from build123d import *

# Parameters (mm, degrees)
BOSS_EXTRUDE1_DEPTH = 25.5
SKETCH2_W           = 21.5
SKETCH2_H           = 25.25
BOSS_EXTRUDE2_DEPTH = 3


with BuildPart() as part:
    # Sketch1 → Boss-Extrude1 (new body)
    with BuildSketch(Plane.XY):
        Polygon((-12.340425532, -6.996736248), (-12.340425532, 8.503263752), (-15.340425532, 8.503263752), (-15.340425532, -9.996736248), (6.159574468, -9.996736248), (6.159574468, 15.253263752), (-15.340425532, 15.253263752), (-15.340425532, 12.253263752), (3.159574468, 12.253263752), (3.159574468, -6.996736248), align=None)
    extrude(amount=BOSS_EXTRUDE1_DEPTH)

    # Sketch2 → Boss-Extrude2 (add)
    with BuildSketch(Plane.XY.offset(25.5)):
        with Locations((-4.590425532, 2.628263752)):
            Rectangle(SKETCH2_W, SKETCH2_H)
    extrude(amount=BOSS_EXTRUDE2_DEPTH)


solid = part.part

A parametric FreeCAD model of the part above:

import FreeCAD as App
import Part
import Sketcher

V = App.Vector

doc = App.newDocument("Part")
body = doc.addObject("PartDesign::Body", "Body")

# Sketch on XY plane
sketch1 = body.newObject("Sketcher::SketchObject", "Sketch")
sketch1.AttachmentSupport = (doc.getObject("XY_Plane"), [""])
sketch1.MapMode = "FlatFace"
sketch1.addGeometry(Part.LineSegment(V(-12.3, -7, 0), V(-12.3, 8.5, 0)), False)
sketch1.addGeometry(Part.LineSegment(V(-12.3, 8.5, 0), V(-15.3, 8.5, 0)), False)
sketch1.addGeometry(Part.LineSegment(V(-15.3, 8.5, 0), V(-15.3, -10, 0)), False)
sketch1.addGeometry(Part.LineSegment(V(-15.3, -10, 0), V(6.2, -10, 0)), False)
sketch1.addGeometry(Part.LineSegment(V(6.2, -10, 0), V(6.2, 15.3, 0)), False)
sketch1.addGeometry(Part.LineSegment(V(6.2, 15.3, 0), V(-15.3, 15.3, 0)), False)
sketch1.addGeometry(Part.LineSegment(V(-15.3, 15.3, 0), V(-15.3, 12.3, 0)), False)
sketch1.addGeometry(Part.LineSegment(V(-15.3, 12.3, 0), V(3.2, 12.3, 0)), False)
sketch1.addGeometry(Part.LineSegment(V(3.2, 12.3, 0), V(3.2, -7, 0)), False)
sketch1.addGeometry(Part.LineSegment(V(3.2, -7, 0), V(-12.3, -7, 0)), False)
sketch1.addConstraint(Sketcher.Constraint("Coincident", 0, 2, 1, 1))
sketch1.addConstraint(Sketcher.Constraint("Coincident", 1, 2, 2, 1))
sketch1.addConstraint(Sketcher.Constraint("Coincident", 2, 2, 3, 1))
sketch1.addConstraint(Sketcher.Constraint("Coincident", 3, 2, 4, 1))
sketch1.addConstraint(Sketcher.Constraint("Coincident", 4, 2, 5, 1))
sketch1.addConstraint(Sketcher.Constraint("Coincident", 5, 2, 6, 1))
sketch1.addConstraint(Sketcher.Constraint("Coincident", 6, 2, 7, 1))
sketch1.addConstraint(Sketcher.Constraint("Coincident", 7, 2, 8, 1))
sketch1.addConstraint(Sketcher.Constraint("Coincident", 8, 2, 9, 1))
sketch1.addConstraint(Sketcher.Constraint("Coincident", 9, 2, 0, 1))
sketch1.addConstraint(Sketcher.Constraint("Vertical", 0))
sketch1.addConstraint(Sketcher.Constraint("Horizontal", 1))
sketch1.addConstraint(Sketcher.Constraint("Vertical", 2))
sketch1.addConstraint(Sketcher.Constraint("Horizontal", 3))
sketch1.addConstraint(Sketcher.Constraint("Vertical", 4))
sketch1.addConstraint(Sketcher.Constraint("Horizontal", 5))
sketch1.addConstraint(Sketcher.Constraint("Vertical", 6))
sketch1.addConstraint(Sketcher.Constraint("Horizontal", 7))
sketch1.addConstraint(Sketcher.Constraint("Vertical", 8))
sketch1.addConstraint(Sketcher.Constraint("Horizontal", 9))
sketch1.addConstraint(Sketcher.Constraint("Vertical", 2, 2, 5, 2))
sketch1.addConstraint(Sketcher.Constraint("Equal", 9, 0))
sketch1.addConstraint(Sketcher.Constraint("Equal", 7, 2))
sketch1.addConstraint(Sketcher.Constraint("Equal", 1, 6))
sketch1.addConstraint(Sketcher.Constraint("DistanceX", 1, 2, 1, 1, 3.0))
sketch1.addConstraint(Sketcher.Constraint("DistanceX", 3, 1, 3, 2, 21.5))
sketch1.addConstraint(Sketcher.Constraint("DistanceX", 7, 1, 7, 2, 18.5))
sketch1.addConstraint(Sketcher.Constraint("DistanceY", 4, 1, 4, 2, 25.25))
sketch1.addConstraint(Sketcher.Constraint("DistanceX", 0, 2, -1, 1, 12.340426))
sketch1.addConstraint(Sketcher.Constraint("DistanceY", -1, 1, 0, 2, 8.503264))
pad1 = body.newObject("PartDesign::Pad", "Pad")
pad1.Profile = sketch1
pad1.Length = 25.5

# Sketch on XY plane
sketch2 = body.newObject("Sketcher::SketchObject", "Sketch001")
sketch2.AttachmentSupport = (doc.getObject("XY_Plane"), [""])
sketch2.MapMode = "FlatFace"
sketch2.AttachmentOffset = App.Placement(V(0, 0, 25.5), App.Rotation())
sketch2.addGeometry(Part.LineSegment(V(-15, 15, 0), V(-15, -10, 0)), False)
sketch2.addGeometry(Part.LineSegment(V(-15, -10, 0), V(6, -10, 0)), False)
sketch2.addGeometry(Part.LineSegment(V(6, -10, 0), V(6, 15, 0)), False)
sketch2.addGeometry(Part.LineSegment(V(6, 15, 0), V(-15, 15, 0)), False)
sketch2.addConstraint(Sketcher.Constraint("Coincident", 0, 2, 1, 1))
sketch2.addConstraint(Sketcher.Constraint("Coincident", 1, 2, 2, 1))
sketch2.addConstraint(Sketcher.Constraint("Coincident", 2, 2, 3, 1))
sketch2.addConstraint(Sketcher.Constraint("Coincident", 3, 2, 0, 1))
sketch2.addConstraint(Sketcher.Constraint("Vertical", 0))
sketch2.addConstraint(Sketcher.Constraint("Horizontal", 1))
sketch2.addConstraint(Sketcher.Constraint("Vertical", 2))
sketch2.addConstraint(Sketcher.Constraint("Horizontal", 3))
sketch2.addConstraint(Sketcher.Constraint("DistanceX", 1, 1, 1, 2, 21.5))
sketch2.addConstraint(Sketcher.Constraint("DistanceY", 0, 2, 0, 1, 25.25))
sketch2.addConstraint(Sketcher.Constraint("DistanceX", 0, 2, -1, 1, 15.340426))
sketch2.addConstraint(Sketcher.Constraint("DistanceY", 0, 2, -1, 1, 9.996736))
pad2 = body.newObject("PartDesign::Pad", "Pad001")
pad2.Profile = sketch2
pad2.Length = 3

doc.recompute()
